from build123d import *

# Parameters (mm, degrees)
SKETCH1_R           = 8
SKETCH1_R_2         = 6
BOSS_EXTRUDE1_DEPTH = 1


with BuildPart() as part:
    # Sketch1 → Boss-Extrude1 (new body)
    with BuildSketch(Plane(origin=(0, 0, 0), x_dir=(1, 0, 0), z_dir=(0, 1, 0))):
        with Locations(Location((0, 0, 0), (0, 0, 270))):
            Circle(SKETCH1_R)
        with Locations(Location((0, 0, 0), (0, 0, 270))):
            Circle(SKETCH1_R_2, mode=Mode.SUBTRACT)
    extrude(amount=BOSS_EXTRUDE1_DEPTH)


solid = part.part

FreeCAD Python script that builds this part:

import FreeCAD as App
import Part
import Sketcher
from FreeCAD import Vector
Q = App.Units.Quantity

doc = App.newDocument("Part")
body = doc.addObject("PartDesign::Body", "Body")

# Sketch on XZ plane
sketch1 = body.newObject("Sketcher::SketchObject", "Sketch")
sketch1.AttachmentSupport = (doc.getObject("XZ_Plane"), [""])
sketch1.MapMode = "FlatFace"
sketch1.addGeometry([
    Part.Circle(Vector(0, 0, 0), Vector(0, 0, 1), 8),
    Part.Circle(Vector(0, 0, 0), Vector(0, 0, 1), 6),
], False)
sketch1.addConstraint([
    Sketcher.Constraint("Coincident", 0, 3, -1, 1),
    Sketcher.Constraint("Coincident", 1, 3, -1, 1),
    Sketcher.Constraint("Diameter", 0, Q("16 mm")),
    Sketcher.Constraint("Diameter", 1, Q("12 mm")),
])
pad1 = body.newObject("PartDesign::Pad", "Pad")
pad1.Profile = sketch1
pad1.Length = 1
pad1.Reversed = True

doc.recompute()
